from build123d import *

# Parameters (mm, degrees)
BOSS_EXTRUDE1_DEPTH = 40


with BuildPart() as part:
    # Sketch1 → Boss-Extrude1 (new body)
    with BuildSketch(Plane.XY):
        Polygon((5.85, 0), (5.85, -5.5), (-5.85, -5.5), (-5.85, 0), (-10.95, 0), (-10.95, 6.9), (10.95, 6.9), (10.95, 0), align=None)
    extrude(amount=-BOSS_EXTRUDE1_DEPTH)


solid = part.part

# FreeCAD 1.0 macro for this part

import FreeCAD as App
import Part
import Sketcher
Q = App.Units.Quantity

doc = App.newDocument("Part")
body = doc.addObject("PartDesign::Body", "Body")

# Sketch on XY plane
sketch1 = doc.addObject("Sketcher::SketchObject", "Sketch")
body.addObject(sketch1)
sketch1.AttachmentSupport = (doc.XY_Plane, [""])
sketch1.MapMode = "FlatFace"
sketch1.addGeometry([
    Part.LineSegment(App.Vector(5.85, -5.5, 0), App.Vector(5.85, 0, 0)),  # 0
    Part.LineSegment(App.Vector(5.85, 0, 0), App.Vector(10.95, 0, 0)),  # 1
    Part.LineSegment(App.Vector(10.95, 0, 0), App.Vector(10.95, 6.9, 0)),  # 2
    Part.LineSegment(App.Vector(10.95, 6.9, 0), App.Vector(-10.95, 6.9, 0)),  # 3
    Part.LineSegment(App.Vector(-10.95, 6.9, 0), App.Vector(-10.95, 0, 0)),  # 4
    Part.LineSegment(App.Vector(-10.95, 0, 0), App.Vector(-5.85, 0, 0)),  # 5
    Part.LineSegment(App.Vector(-5.85, 0, 0), App.Vector(-5.85, -5.5, 0)),  # 6
    Part.LineSegment(App.Vector(-5.85, -5.5, 0), App.Vector(5.85, -5.5, 0)),  # 7
], False)
sketch1.addConstraint([
    Sketcher.Constraint("Coincident", 0, 2, 1, 1),
    Sketcher.Constraint("Coincident", 1, 2, 2, 1),
    Sketcher.Constraint("Coincident", 2, 2, 3, 1),
    Sketcher.Constraint("Coincident", 3, 2, 4, 1),
    Sketcher.Constraint("Coincident", 4, 2, 5, 1),
    Sketcher.Constraint("Coincident", 5, 2, 6, 1),
    Sketcher.Constraint("Coincident", 6, 2, 7, 1),
    Sketcher.Constraint("Coincident", 7, 2, 0, 1),
    Sketcher.Constraint("Vertical", 0),
    Sketcher.Constraint("Horizontal", 1),
    Sketcher.Constraint("Vertical", 2),
    Sketcher.Constraint("Horizontal", 3),
    Sketcher.Constraint("Vertical", 4),
    Sketcher.Constraint("Horizontal", 5),
    Sketcher.Constraint("Vertical", 6),
    Sketcher.Constraint("Horizontal", 7),
    Sketcher.Constraint("Symmetric", 1, 2, 4, 2, -1, 1),
    Sketcher.Constraint("Symmetric", 0, 2, 5, 2, -2),
    Sketcher.Constraint("DistanceX", 1, 1, 1, 2, Q("5.1 mm")),
    Sketcher.Constraint("DistanceX", 3, 2, 3, 1, Q("21.9 mm")),
    Sketcher.Constraint("DistanceY", 0, 1, 0, 2, Q("5.5 mm")),
    Sketcher.Constraint("DistanceY", 2, 1, 2, 2, Q("6.9 mm")),
])
pad1 = doc.addObject("PartDesign::Pad", "Pad")
body.addObject(pad1)
pad1.Profile = sketch1
pad1.Length = 40
pad1.Reversed = True

doc.recompute()
